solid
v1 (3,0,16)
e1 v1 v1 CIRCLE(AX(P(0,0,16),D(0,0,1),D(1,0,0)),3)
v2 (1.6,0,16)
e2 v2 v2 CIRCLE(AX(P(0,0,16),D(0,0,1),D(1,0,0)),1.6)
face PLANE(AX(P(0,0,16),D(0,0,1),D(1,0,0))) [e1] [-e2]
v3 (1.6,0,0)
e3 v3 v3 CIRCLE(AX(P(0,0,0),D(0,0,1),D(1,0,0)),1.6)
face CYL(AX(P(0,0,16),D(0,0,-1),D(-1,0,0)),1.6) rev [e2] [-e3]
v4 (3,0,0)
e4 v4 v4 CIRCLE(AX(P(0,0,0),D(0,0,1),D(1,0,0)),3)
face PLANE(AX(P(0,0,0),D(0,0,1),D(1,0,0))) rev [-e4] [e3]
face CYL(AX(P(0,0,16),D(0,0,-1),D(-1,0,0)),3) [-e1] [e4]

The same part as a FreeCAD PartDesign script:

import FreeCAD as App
import Part
import Sketcher

V = App.Vector
Q = App.Units.Quantity

doc = App.newDocument("Part")
body = doc.addObject("PartDesign::Body", "Body")

# Sketch on XY plane
sketch1 = body.newObject("Sketcher::SketchObject", "Sketch")
sketch1.AttachmentSupport = (doc.getObject("XY_Plane"), [""])
sketch1.MapMode = "FlatFace"
sketch1.addGeometry([
    Part.Circle(V(0, 0, 0), V(0, 0, 1), 3),
    Part.Circle(V(0, 0, 0), V(0, 0, 1), 1.6),
], False)
sketch1.addConstraint([
    Sketcher.Constraint("Coincident", 0, 3, -1, 1),
    Sketcher.Constraint("Coincident", 1, 3, -1, 1),
    Sketcher.Constraint("Diameter", 0, Q("6 mm")),
    Sketcher.Constraint("Diameter", 1, Q("3.2 mm")),
])
pad1 = body.newObject("PartDesign::Pad", "Pad")
pad1.Profile = sketch1
pad1.Length = 16

doc.recompute()
